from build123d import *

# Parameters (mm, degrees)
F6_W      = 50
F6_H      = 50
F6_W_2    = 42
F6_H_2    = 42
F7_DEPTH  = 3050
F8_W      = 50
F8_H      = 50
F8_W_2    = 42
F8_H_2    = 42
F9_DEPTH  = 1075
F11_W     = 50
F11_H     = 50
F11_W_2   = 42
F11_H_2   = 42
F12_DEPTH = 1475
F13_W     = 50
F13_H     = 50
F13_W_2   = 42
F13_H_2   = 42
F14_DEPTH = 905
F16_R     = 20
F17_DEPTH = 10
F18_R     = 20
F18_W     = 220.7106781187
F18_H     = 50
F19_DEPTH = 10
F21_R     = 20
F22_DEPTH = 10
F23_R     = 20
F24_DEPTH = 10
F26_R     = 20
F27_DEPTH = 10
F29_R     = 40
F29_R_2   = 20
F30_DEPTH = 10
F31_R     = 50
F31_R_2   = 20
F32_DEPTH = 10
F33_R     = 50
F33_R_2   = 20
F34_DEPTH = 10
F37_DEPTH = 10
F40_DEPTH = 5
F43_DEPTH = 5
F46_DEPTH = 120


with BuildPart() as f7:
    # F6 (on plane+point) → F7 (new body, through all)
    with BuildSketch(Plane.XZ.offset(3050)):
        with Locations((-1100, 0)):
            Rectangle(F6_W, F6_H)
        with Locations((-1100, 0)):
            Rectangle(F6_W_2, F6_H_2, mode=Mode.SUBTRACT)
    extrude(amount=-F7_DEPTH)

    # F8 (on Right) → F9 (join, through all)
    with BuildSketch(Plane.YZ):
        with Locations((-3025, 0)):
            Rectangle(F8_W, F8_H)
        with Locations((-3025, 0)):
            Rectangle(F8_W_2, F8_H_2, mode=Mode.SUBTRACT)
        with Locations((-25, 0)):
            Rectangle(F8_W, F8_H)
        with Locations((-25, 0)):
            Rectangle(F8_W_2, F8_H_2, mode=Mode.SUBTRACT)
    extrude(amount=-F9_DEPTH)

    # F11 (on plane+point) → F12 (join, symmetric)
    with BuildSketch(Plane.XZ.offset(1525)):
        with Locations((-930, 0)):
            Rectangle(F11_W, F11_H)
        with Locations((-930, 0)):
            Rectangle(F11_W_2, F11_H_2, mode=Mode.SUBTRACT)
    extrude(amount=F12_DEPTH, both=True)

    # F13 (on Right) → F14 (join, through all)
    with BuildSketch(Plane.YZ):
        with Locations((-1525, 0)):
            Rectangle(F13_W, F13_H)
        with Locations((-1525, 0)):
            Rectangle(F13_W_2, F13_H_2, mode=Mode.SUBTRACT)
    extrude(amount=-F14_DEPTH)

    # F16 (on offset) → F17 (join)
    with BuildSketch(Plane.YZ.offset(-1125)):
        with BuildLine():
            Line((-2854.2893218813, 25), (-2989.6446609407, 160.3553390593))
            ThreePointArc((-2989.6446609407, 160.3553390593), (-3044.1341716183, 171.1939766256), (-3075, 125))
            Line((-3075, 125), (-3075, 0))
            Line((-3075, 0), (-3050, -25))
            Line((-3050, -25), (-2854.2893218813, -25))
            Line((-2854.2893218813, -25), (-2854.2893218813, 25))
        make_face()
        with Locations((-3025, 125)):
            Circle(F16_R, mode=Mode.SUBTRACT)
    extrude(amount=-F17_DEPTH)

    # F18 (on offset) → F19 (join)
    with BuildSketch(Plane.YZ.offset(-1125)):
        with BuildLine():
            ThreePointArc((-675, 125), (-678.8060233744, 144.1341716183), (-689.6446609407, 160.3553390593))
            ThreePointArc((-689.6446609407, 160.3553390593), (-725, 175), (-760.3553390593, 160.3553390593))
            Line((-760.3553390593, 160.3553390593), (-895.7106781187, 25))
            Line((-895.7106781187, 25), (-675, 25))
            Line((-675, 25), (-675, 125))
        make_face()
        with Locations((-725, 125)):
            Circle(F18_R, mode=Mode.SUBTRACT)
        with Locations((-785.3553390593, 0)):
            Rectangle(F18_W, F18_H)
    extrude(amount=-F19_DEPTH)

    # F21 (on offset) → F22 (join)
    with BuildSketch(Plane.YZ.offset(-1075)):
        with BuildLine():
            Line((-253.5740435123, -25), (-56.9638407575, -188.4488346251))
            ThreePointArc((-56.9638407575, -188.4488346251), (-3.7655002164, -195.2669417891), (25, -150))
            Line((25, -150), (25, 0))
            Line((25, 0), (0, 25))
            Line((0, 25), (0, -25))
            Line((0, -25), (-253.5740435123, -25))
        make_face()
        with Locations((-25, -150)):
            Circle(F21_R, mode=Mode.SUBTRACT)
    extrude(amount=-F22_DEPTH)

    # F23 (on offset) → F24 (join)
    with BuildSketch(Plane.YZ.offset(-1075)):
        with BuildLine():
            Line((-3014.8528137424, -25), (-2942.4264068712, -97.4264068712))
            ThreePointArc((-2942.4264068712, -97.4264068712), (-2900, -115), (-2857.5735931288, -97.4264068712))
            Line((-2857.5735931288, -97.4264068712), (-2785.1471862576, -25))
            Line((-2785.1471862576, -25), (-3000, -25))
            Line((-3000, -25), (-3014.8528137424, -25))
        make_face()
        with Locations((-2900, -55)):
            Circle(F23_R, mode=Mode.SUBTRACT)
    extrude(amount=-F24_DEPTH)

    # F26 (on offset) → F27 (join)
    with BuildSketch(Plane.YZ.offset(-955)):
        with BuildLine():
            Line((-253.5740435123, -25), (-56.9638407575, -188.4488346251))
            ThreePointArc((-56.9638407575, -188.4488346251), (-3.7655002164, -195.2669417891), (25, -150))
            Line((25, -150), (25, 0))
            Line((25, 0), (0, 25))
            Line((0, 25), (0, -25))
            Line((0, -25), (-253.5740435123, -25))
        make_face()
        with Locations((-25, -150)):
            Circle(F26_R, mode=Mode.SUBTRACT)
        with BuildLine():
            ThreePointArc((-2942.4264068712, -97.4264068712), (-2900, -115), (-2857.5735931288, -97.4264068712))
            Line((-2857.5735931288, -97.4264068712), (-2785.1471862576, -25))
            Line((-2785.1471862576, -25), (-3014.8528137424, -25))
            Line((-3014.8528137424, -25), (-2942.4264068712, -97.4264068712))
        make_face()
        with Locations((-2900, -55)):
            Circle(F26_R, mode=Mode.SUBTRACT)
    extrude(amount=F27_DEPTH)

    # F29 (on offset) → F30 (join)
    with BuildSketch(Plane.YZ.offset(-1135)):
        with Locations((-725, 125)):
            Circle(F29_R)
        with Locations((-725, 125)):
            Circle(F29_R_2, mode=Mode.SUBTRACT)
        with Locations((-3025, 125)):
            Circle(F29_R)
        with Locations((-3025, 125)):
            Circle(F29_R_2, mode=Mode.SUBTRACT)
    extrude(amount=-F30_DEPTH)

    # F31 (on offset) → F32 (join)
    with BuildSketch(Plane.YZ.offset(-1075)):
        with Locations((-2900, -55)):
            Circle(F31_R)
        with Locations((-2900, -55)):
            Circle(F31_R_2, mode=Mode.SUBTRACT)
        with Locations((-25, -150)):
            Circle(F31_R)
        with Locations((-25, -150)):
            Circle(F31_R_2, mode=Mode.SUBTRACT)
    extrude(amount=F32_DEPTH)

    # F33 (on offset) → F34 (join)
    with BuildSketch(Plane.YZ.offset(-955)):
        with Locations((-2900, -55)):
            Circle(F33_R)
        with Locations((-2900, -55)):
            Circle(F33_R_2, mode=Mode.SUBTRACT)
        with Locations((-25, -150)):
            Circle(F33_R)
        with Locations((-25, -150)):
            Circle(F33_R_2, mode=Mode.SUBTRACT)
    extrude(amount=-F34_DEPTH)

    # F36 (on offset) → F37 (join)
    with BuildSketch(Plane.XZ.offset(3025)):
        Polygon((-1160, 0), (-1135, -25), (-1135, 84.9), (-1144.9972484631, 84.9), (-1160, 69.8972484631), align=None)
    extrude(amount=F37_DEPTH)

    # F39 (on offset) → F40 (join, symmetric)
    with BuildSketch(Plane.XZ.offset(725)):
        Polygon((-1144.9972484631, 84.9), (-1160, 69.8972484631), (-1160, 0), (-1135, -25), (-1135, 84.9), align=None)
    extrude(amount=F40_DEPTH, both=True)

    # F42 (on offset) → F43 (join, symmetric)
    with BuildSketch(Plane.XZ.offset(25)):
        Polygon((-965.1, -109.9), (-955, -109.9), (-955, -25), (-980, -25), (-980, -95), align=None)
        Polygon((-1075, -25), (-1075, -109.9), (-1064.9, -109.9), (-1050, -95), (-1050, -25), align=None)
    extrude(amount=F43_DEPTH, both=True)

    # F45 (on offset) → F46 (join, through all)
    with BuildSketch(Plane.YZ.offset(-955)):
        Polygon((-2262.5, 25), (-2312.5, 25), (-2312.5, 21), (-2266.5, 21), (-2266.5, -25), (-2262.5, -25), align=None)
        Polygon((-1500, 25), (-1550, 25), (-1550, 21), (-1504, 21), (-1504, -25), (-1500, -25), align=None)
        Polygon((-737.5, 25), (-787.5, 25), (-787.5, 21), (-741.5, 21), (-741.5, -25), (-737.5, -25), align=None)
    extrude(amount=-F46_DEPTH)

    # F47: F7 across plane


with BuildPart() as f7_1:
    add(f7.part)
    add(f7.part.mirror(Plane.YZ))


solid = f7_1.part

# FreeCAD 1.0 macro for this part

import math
import FreeCAD as App
import Part
import Sketcher
Q = App.Units.Quantity


def add_polygon(sketch, points):
    """Adds a closed chain of lines whose ends are joined by coincident constraints."""
    first, n = sketch.GeometryCount, len(points)
    for a, b in zip(points, points[1:] + points[:1]):
        sketch.addGeometry(Part.LineSegment(App.Vector(*a, 0), App.Vector(*b, 0)), False)
    for i in range(n):
        sketch.addConstraint(Sketcher.Constraint("Coincident", first + i, 2, first + (i + 1) % n, 1))

doc = App.newDocument("Part")
body = doc.addObject("PartDesign::Body", "Body")

# Sketch on XZ plane
sketch1 = doc.addObject("Sketcher::SketchObject", "Sketch")
body.addObject(sketch1)
sketch1.AttachmentSupport = (doc.XZ_Plane, [""])
sketch1.MapMode = "FlatFace"
sketch1.AttachmentOffset = App.Placement(App.Vector(0, 0, 3050), App.Rotation())
add_polygon(sketch1, [(-1125, 25), (-1125, -25), (-1075, -25), (-1075, 25)])  # lines 0-3
add_polygon(sketch1, [(-1079, -21), (-1121, -21), (-1121, 21), (-1079, 21)])  # lines 4-7
sketch1.addConstraint([
    Sketcher.Constraint("Vertical", 0),
    Sketcher.Constraint("Horizontal", 1),
    Sketcher.Constraint("Vertical", 2),
    Sketcher.Constraint("Horizontal", 3),
    Sketcher.Constraint("Horizontal", 4),
    Sketcher.Constraint("Vertical", 5),
    Sketcher.Constraint("Horizontal", 6),
    Sketcher.Constraint("Vertical", 7),
    Sketcher.Constraint("Equal", 3, 0),
    Sketcher.Constraint("Equal", 6, 5),
    Sketcher.Constraint("DistanceX", 1, 1, 1, 2, 50.0),
    Sketcher.Constraint("DistanceX", 4, 2, 4, 1, 42.0),
    Sketcher.Constraint("DistanceX", 0, 2, -1, 1, 1125.0),
    Sketcher.Constraint("DistanceY", 0, 2, -1, 1, 25.0),
    Sketcher.Constraint("DistanceX", 4, 2, -1, 1, 1121.0),
    Sketcher.Constraint("DistanceY", 4, 2, -1, 1, 21.0),
])
pad1 = doc.addObject("PartDesign::Pad", "Pad")
body.addObject(pad1)
pad1.Profile = sketch1
pad1.Length = 3050
pad1.Reversed = True

# Sketch on YZ plane
sketch2 = doc.addObject("Sketcher::SketchObject", "Sketch001")
body.addObject(sketch2)
sketch2.AttachmentSupport = (doc.YZ_Plane, [""])
sketch2.MapMode = "FlatFace"
add_polygon(sketch2, [(-3050, 25), (-3050, -25), (-3000, -25), (-3000, 25)])  # lines 0-3
add_polygon(sketch2, [(-3004, -21), (-3046, -21), (-3046, 21), (-3004, 21)])  # lines 4-7
add_polygon(sketch2, [(-50, 25), (-50, -25), (0, -25), (0, 25)])  # lines 8-11
add_polygon(sketch2, [(-4, -21), (-46, -21), (-46, 21), (-4, 21)])  # lines 12-15
sketch2.addConstraint([
    Sketcher.Constraint("Vertical", 0),
    Sketcher.Constraint("Horizontal", 1),
    Sketcher.Constraint("Vertical", 2),
    Sketcher.Constraint("Horizontal", 3),
    Sketcher.Constraint("Horizontal", 4),
    Sketcher.Constraint("Vertical", 5),
    Sketcher.Constraint("Horizontal", 6),
    Sketcher.Constraint("Vertical", 7),
    Sketcher.Constraint("Vertical", 8),
    Sketcher.Constraint("Horizontal", 9),
    Sketcher.Constraint("Vertical", 10),
    Sketcher.Constraint("Horizontal", 11),
    Sketcher.Constraint("Horizontal", 12),
    Sketcher.Constraint("Vertical", 13),
    Sketcher.Constraint("Horizontal", 14),
    Sketcher.Constraint("Vertical", 15),
    Sketcher.Constraint("Symmetric", 9, 2, 10, 2, -1, 1),
    Sketcher.Constraint("Horizontal", 1, 2, 8, 2),
    Sketcher.Constraint("Horizontal", 3, 2, 10, 2),
    Sketcher.Constraint("Horizontal", 7, 2, 12, 2),
    Sketcher.Constraint("Horizontal", 6, 2, 13, 2),
    Sketcher.Constraint("Equal", 3, 9),
    Sketcher.Constraint("Equal", 6, 12),
    Sketcher.Constraint("Equal", 11, 0),
    Sketcher.Constraint("Equal", 14, 5),
    Sketcher.Constraint("DistanceX", 1, 1, 1, 2, 50.0),
    Sketcher.Constraint("DistanceX", 4, 2, 4, 1, 42.0),
    Sketcher.Constraint("DistanceX", 0, 2, -1, 1, 3050.0),
    Sketcher.Constraint("DistanceX", 4, 2, -1, 1, 3046.0),
    Sketcher.Constraint("DistanceY", 4, 2, -1, 1, 21.0),
    Sketcher.Constraint("DistanceX", 12, 2, -1, 1, 46.0),
])
pad2 = doc.addObject("PartDesign::Pad", "Pad001")
body.addObject(pad2)
pad2.Profile = sketch2
pad2.Length = 1075
pad2.Reversed = True

# Sketch on XZ plane
sketch3 = doc.addObject("Sketcher::SketchObject", "Sketch002")
body.addObject(sketch3)
sketch3.AttachmentSupport = (doc.XZ_Plane, [""])
sketch3.MapMode = "FlatFace"
sketch3.AttachmentOffset = App.Placement(App.Vector(0, 0, 1525), App.Rotation())
add_polygon(sketch3, [(-955, 25), (-955, -25), (-905, -25), (-905, 25)])  # lines 0-3
add_polygon(sketch3, [(-909, -21), (-951, -21), (-951, 21), (-909, 21)])  # lines 4-7
sketch3.addConstraint([
    Sketcher.Constraint("Vertical", 0),
    Sketcher.Constraint("Horizontal", 1),
    Sketcher.Constraint("Vertical", 2),
    Sketcher.Constraint("Horizontal", 3),
    Sketcher.Constraint("Horizontal", 4),
    Sketcher.Constraint("Vertical", 5),
    Sketcher.Constraint("Horizontal", 6),
    Sketcher.Constraint("Vertical", 7),
    Sketcher.Constraint("Equal", 3, 0),
    Sketcher.Constraint("Equal", 6, 5),
    Sketcher.Constraint("DistanceX", 1, 1, 1, 2, 50.0),
    Sketcher.Constraint("DistanceX", 4, 2, 4, 1, 42.0),
    Sketcher.Constraint("DistanceX", 0, 2, -1, 1, 955.0),
    Sketcher.Constraint("DistanceY", 0, 2, -1, 1, 25.0),
    Sketcher.Constraint("DistanceX", 4, 2, -1, 1, 951.0),
    Sketcher.Constraint("DistanceY", 4, 2, -1, 1, 21.0),
])
pad3 = doc.addObject("PartDesign::Pad", "Pad002")
body.addObject(pad3)
pad3.Profile = sketch3
pad3.Length = 2950
pad3.Midplane = True

# Sketch on YZ plane
sketch4 = doc.addObject("Sketcher::SketchObject", "Sketch003")
body.addObject(sketch4)
sketch4.AttachmentSupport = (doc.YZ_Plane, [""])
sketch4.MapMode = "FlatFace"
add_polygon(sketch4, [(-1550, 25), (-1550, -25), (-1500, -25), (-1500, 25)])  # lines 0-3
add_polygon(sketch4, [(-1504, -21), (-1546, -21), (-1546, 21), (-1504, 21)])  # lines 4-7
sketch4.addConstraint([
    Sketcher.Constraint("Vertical", 0),
    Sketcher.Constraint("Horizontal", 1),
    Sketcher.Constraint("Vertical", 2),
    Sketcher.Constraint("Horizontal", 3),
    Sketcher.Constraint("Horizontal", 4),
    Sketcher.Constraint("Vertical", 5),
    Sketcher.Constraint("Horizontal", 6),
    Sketcher.Constraint("Vertical", 7),
    Sketcher.Constraint("Equal", 3, 0),
    Sketcher.Constraint("Equal", 6, 5),
    Sketcher.Constraint("DistanceX", 1, 1, 1, 2, 50.0),
    Sketcher.Constraint("DistanceX", 4, 2, 4, 1, 42.0),
    Sketcher.Constraint("DistanceX", 0, 2, -1, 1, 1550.0),
    Sketcher.Constraint("DistanceY", 0, 2, -1, 1, 25.0),
    Sketcher.Constraint("DistanceX", 4, 2, -1, 1, 1546.0),
    Sketcher.Constraint("DistanceY", 4, 2, -1, 1, 21.0),
])
pad4 = doc.addObject("PartDesign::Pad", "Pad003")
body.addObject(pad4)
pad4.Profile = sketch4
pad4.Length = 905
pad4.Reversed = True

# Sketch on YZ plane
sketch5 = doc.addObject("Sketcher::SketchObject", "Sketch004")
body.addObject(sketch5)
sketch5.AttachmentSupport = (doc.YZ_Plane, [""])
sketch5.MapMode = "FlatFace"
sketch5.AttachmentOffset = App.Placement(App.Vector(0, 0, -1125), App.Rotation())
sketch5.addGeometry([
    Part.LineSegment(App.Vector(-2854.289322, 25, 0), App.Vector(-2989.644661, 160.355339, 0)),  # 0
    Part.ArcOfCircle(Part.Circle(App.Vector(-3025, 125, 0), App.Vector(0, 0, 1), 50), math.radians(45), math.radians(180)),  # 1
    Part.LineSegment(App.Vector(-3075, 125, 0), App.Vector(-3075, 0, 0)),  # 2
    Part.LineSegment(App.Vector(-3075, 0, 0), App.Vector(-3050, -25, 0)),  # 3
    Part.LineSegment(App.Vector(-3050, -25, 0), App.Vector(-2854.289322, -25, 0)),  # 4
    Part.LineSegment(App.Vector(-2854.289322, -25, 0), App.Vector(-2854.289322, 25, 0)),  # 5
    Part.Circle(App.Vector(-3025, 125, 0), App.Vector(0, 0, 1), 20),  # 6
], False)
sketch5.addConstraint([
    Sketcher.Constraint("Tangent", 0, 2, 1, 1),
    Sketcher.Constraint("Tangent", 1, 2, 2, 1),
    Sketcher.Constraint("Coincident", 2, 2, 3, 1),
    Sketcher.Constraint("Coincident", 3, 2, 4, 1),
    Sketcher.Constraint("Coincident", 4, 2, 5, 1),
    Sketcher.Constraint("Coincident", 5, 2, 0, 1),
    Sketcher.Constraint("Vertical", 2),
    Sketcher.Constraint("Horizontal", 4),
    Sketcher.Constraint("Vertical", 5),
    Sketcher.Constraint("Coincident", 6, 3, 1, 3),
    Sketcher.Constraint("PointOnObject", 2, 2, -1),
    Sketcher.Constraint("Parallel", 0, 3),
    Sketcher.Constraint("Diameter", 6, 40.0),
    Sketcher.Constraint("Radius", 1, 50.0),
    Sketcher.Constraint("DistanceY", 2, 2, 2, 1, 125.0),
    Sketcher.Constraint("DistanceY", 5, 1, 5, 2, 50.0),
    Sketcher.Constraint("Angle", 0, Q("135 deg")),
    Sketcher.Constraint("DistanceX", 1, 3, -1, 1, 3025.0),
    Sketcher.Constraint("DistanceX", 3, 2, -1, 1, 3050.0),
])
pad5 = doc.addObject("PartDesign::Pad", "Pad004")
body.addObject(pad5)
pad5.Profile = sketch5
pad5.Length = 10
pad5.Reversed = True

# Sketch on YZ plane
sketch6 = doc.addObject("Sketcher::SketchObject", "Sketch005")
body.addObject(sketch6)
sketch6.AttachmentSupport = (doc.YZ_Plane, [""])
sketch6.MapMode = "FlatFace"
sketch6.AttachmentOffset = App.Placement(App.Vector(0, 0, -1125), App.Rotation())
sketch6.addGeometry([
    Part.ArcOfCircle(Part.Circle(App.Vector(-725, 125, 0), App.Vector(0, 0, 1), 50), math.radians(0), math.radians(45)),  # 0
    Part.ArcOfCircle(Part.Circle(App.Vector(-725, 125, 0), App.Vector(0, 0, 1), 50), math.radians(45), math.radians(135)),  # 1
    Part.LineSegment(App.Vector(-760.355339, 160.355339, 0), App.Vector(-895.710678, 25, 0)),  # 2
    Part.LineSegment(App.Vector(-895.710678, 25, 0), App.Vector(-895.710678, -25, 0)),  # 3
    Part.LineSegment(App.Vector(-895.710678, -25, 0), App.Vector(-675, -25, 0)),  # 4
    Part.LineSegment(App.Vector(-675, -25, 0), App.Vector(-675, 125, 0)),  # 5
    Part.Circle(App.Vector(-725, 125, 0), App.Vector(0, 0, 1), 20),  # 6
], False)
sketch6.addConstraint([
    Sketcher.Constraint("Tangent", 0, 2, 1, 1),
    Sketcher.Constraint("Tangent", 1, 2, 2, 1),
    Sketcher.Constraint("Coincident", 2, 2, 3, 1),
    Sketcher.Constraint("Coincident", 3, 2, 4, 1),
    Sketcher.Constraint("Coincident", 4, 2, 5, 1),
    Sketcher.Constraint("Tangent", 5, 2, 0, 1),
    Sketcher.Constraint("Vertical", 3),
    Sketcher.Constraint("Horizontal", 4),
    Sketcher.Constraint("Vertical", 5),
    Sketcher.Constraint("Coincident", 6, 3, 0, 3),
    Sketcher.Constraint("Equal", 0, 1),
    Sketcher.Constraint("Horizontal", 0, 2, 1, 2),
    Sketcher.Constraint("Diameter", 6, 40.0),
    Sketcher.Constraint("Radius", 0, 50.0),
    Sketcher.Constraint("DistanceY", 3, 2, 3, 1, 50.0),
    Sketcher.Constraint("DistanceY", 5, 1, 5, 2, 150.0),
    Sketcher.Constraint("Angle", 2, Q("-135 deg")),
    Sketcher.Constraint("DistanceX", 0, 3, -1, 1, 725.0),
    Sketcher.Constraint("DistanceY", -1, 1, 0, 3, 125.0),
])
pad6 = doc.addObject("PartDesign::Pad", "Pad005")
body.addObject(pad6)
pad6.Profile = sketch6
pad6.Length = 10
pad6.Reversed = True

# Sketch on YZ plane
sketch7 = doc.addObject("Sketcher::SketchObject", "Sketch006")
body.addObject(sketch7)
sketch7.AttachmentSupport = (doc.YZ_Plane, [""])
sketch7.MapMode = "FlatFace"
sketch7.AttachmentOffset = App.Placement(App.Vector(0, 0, -1075), App.Rotation())
sketch7.addGeometry([
    Part.LineSegment(App.Vector(-253.574044, -25, 0), App.Vector(-56.963841, -188.448835, 0)),  # 0
    Part.ArcOfCircle(Part.Circle(App.Vector(-25, -150, 0), App.Vector(0, 0, 1), 50), math.radians(-129.737915), math.radians(0)),  # 1
    Part.LineSegment(App.Vector(25, -150, 0), App.Vector(25, 0, 0)),  # 2
    Part.LineSegment(App.Vector(25, 0, 0), App.Vector(0, 25, 0)),  # 3
    Part.LineSegment(App.Vector(0, 25, 0), App.Vector(0, -25, 0)),  # 4
    Part.LineSegment(App.Vector(0, -25, 0), App.Vector(-253.574044, -25, 0)),  # 5
    Part.Circle(App.Vector(-25, -150, 0), App.Vector(0, 0, 1), 20),  # 6
], False)
sketch7.addConstraint([
    Sketcher.Constraint("Tangent", 0, 2, 1, 1),
    Sketcher.Constraint("Tangent", 1, 2, 2, 1),
    Sketcher.Constraint("Coincident", 2, 2, 3, 1),
    Sketcher.Constraint("Coincident", 3, 2, 4, 1),
    Sketcher.Constraint("Coincident", 4, 2, 5, 1),
    Sketcher.Constraint("Coincident", 5, 2, 0, 1),
    Sketcher.Constraint("Vertical", 2),
    Sketcher.Constraint("Vertical", 4),
    Sketcher.Constraint("Horizontal", 5),
    Sketcher.Constraint("Coincident", 6, 3, 1, 3),
    Sketcher.Constraint("Symmetric", 3, 2, 4, 2, -1, 1),
    Sketcher.Constraint("PointOnObject", 2, 2, -1),
    Sketcher.Constraint("Diameter", 6, 40.0),
    Sketcher.Constraint("Radius", 1, 50.0),
    Sketcher.Constraint("DistanceY", 2, 1, 2, 2, 150.0),
    Sketcher.Constraint("DistanceY", 4, 2, 4, 1, 50.0),
    Sketcher.Constraint("Angle", 3, Q("135 deg")),
    Sketcher.Constraint("DistanceX", 5, 2, 5, 1, 253.574044),
])
pad7 = doc.addObject("PartDesign::Pad", "Pad006")
body.addObject(pad7)
pad7.Profile = sketch7
pad7.Length = 10
pad7.Reversed = True

# Sketch on YZ plane
sketch8 = doc.addObject("Sketcher::SketchObject", "Sketch007")
body.addObject(sketch8)
sketch8.AttachmentSupport = (doc.YZ_Plane, [""])
sketch8.MapMode = "FlatFace"
sketch8.AttachmentOffset = App.Placement(App.Vector(0, 0, -1075), App.Rotation())
sketch8.addGeometry([
    Part.LineSegment(App.Vector(-3014.852814, -25, 0), App.Vector(-2942.426407, -97.426407, 0)),  # 0
    Part.ArcOfCircle(Part.Circle(App.Vector(-2900, -55, 0), App.Vector(0, 0, 1), 60), math.radians(-135), math.radians(-45)),  # 1
    Part.LineSegment(App.Vector(-2857.573593, -97.426407, 0), App.Vector(-2785.147186, -25, 0)),  # 2
    Part.LineSegment(App.Vector(-2785.147186, -25, 0), App.Vector(-3014.852814, -25, 0)),  # 3
    Part.Circle(App.Vector(-2900, -55, 0), App.Vector(0, 0, 1), 20),  # 4
], False)
sketch8.addConstraint([
    Sketcher.Constraint("Tangent", 0, 2, 1, 1),
    Sketcher.Constraint("Tangent", 1, 2, 2, 1),
    Sketcher.Constraint("Coincident", 2, 2, 3, 1),
    Sketcher.Constraint("Coincident", 3, 2, 0, 1),
    Sketcher.Constraint("Horizontal", 3),
    Sketcher.Constraint("Coincident", 4, 3, 1, 3),
    Sketcher.Constraint("Perpendicular", 0, 2),
    Sketcher.Constraint("Horizontal", 0, 2, 1, 2),
    Sketcher.Constraint("Diameter", 4, 40.0),
    Sketcher.Constraint("Radius", 1, 60.0),
    Sketcher.Constraint("DistanceX", 1, 3, -1, 1, 2900.0),
    Sketcher.Constraint("DistanceY", 1, 3, -1, 1, 55.0),
    Sketcher.Constraint("DistanceY", 2, 2, -1, 1, 25.0),
])
pad8 = doc.addObject("PartDesign::Pad", "Pad007")
body.addObject(pad8)
pad8.Profile = sketch8
pad8.Length = 10
pad8.Reversed = True

# Sketch on YZ plane
sketch9 = doc.addObject("Sketcher::SketchObject", "Sketch008")
body.addObject(sketch9)
sketch9.AttachmentSupport = (doc.YZ_Plane, [""])
sketch9.MapMode = "FlatFace"
sketch9.AttachmentOffset = App.Placement(App.Vector(0, 0, -955), App.Rotation())
sketch9.addGeometry([
    Part.LineSegment(App.Vector(-253.574044, -25, 0), App.Vector(-56.963841, -188.448835, 0)),  # 0
    Part.ArcOfCircle(Part.Circle(App.Vector(-25, -150, 0), App.Vector(0, 0, 1), 50), math.radians(-129.737915), math.radians(0)),  # 1
    Part.LineSegment(App.Vector(25, -150, 0), App.Vector(25, 0, 0)),  # 2
    Part.LineSegment(App.Vector(25, 0, 0), App.Vector(0, 25, 0)),  # 3
    Part.LineSegment(App.Vector(0, 25, 0), App.Vector(0, -25, 0)),  # 4
    Part.LineSegment(App.Vector(0, -25, 0), App.Vector(-253.574044, -25, 0)),  # 5
    Part.Circle(App.Vector(-25, -150, 0), App.Vector(0, 0, 1), 20),  # 6
    Part.ArcOfCircle(Part.Circle(App.Vector(-2900, -55, 0), App.Vector(0, 0, 1), 60), math.radians(-135), math.radians(-45)),  # 7
    Part.LineSegment(App.Vector(-2857.573593, -97.426407, 0), App.Vector(-2785.147186, -25, 0)),  # 8
    Part.LineSegment(App.Vector(-2785.147186, -25, 0), App.Vector(-3014.852814, -25, 0)),  # 9
    Part.LineSegment(App.Vector(-3014.852814, -25, 0), App.Vector(-2942.426407, -97.426407, 0)),  # 10
    Part.Circle(App.Vector(-2900, -55, 0), App.Vector(0, 0, 1), 20),  # 11
], False)
sketch9.addConstraint([
    Sketcher.Constraint("Tangent", 0, 2, 1, 1),
    Sketcher.Constraint("Tangent", 1, 2, 2, 1),
    Sketcher.Constraint("Coincident", 2, 2, 3, 1),
    Sketcher.Constraint("Coincident", 3, 2, 4, 1),
    Sketcher.Constraint("Coincident", 4, 2, 5, 1),
    Sketcher.Constraint("Coincident", 5, 2, 0, 1),
    Sketcher.Constraint("Tangent", 7, 2, 8, 1),
    Sketcher.Constraint("Coincident", 8, 2, 9, 1),
    Sketcher.Constraint("Coincident", 9, 2, 10, 1),
    Sketcher.Constraint("Tangent", 10, 2, 7, 1),
    Sketcher.Constraint("Vertical", 2),
    Sketcher.Constraint("Vertical", 4),
    Sketcher.Constraint("Horizontal", 5),
    Sketcher.Constraint("Horizontal", 9),
    Sketcher.Constraint("Coincident", 6, 3, 1, 3),
    Sketcher.Constraint("Coincident", 11, 3, 7, 3),
    Sketcher.Constraint("Equal", 6, 11),
    Sketcher.Constraint("Symmetric", 3, 2, 4, 2, -1, 1),
    Sketcher.Constraint("PointOnObject", 2, 2, -1),
    Sketcher.Constraint("Perpendicular", 3, 8),
    Sketcher.Constraint("Perpendicular", 8, 10),
    Sketcher.Constraint("Horizontal", 5, 2, 8, 2),
    Sketcher.Constraint("Horizontal", 7, 2, 10, 2),
    Sketcher.Constraint("Diameter", 6, 40.0),
    Sketcher.Constraint("Radius", 1, 50.0),
    Sketcher.Constraint("Radius", 7, 60.0),
    Sketcher.Constraint("DistanceY", 2, 1, 2, 2, 150.0),
    Sketcher.Constraint("DistanceY", 4, 2, 4, 1, 50.0),
    Sketcher.Constraint("DistanceX", 7, 3, -1, 1, 2900.0),
    Sketcher.Constraint("DistanceY", 7, 3, -1, 1, 55.0),
    Sketcher.Constraint("DistanceX", 5, 2, 5, 1, 253.574044),
])
pad9 = doc.addObject("PartDesign::Pad", "Pad008")
body.addObject(pad9)
pad9.Profile = sketch9
pad9.Length = 10

# Sketch on YZ plane
sketch10 = doc.addObject("Sketcher::SketchObject", "Sketch009")
body.addObject(sketch10)
sketch10.AttachmentSupport = (doc.YZ_Plane, [""])
sketch10.MapMode = "FlatFace"
sketch10.AttachmentOffset = App.Placement(App.Vector(0, 0, -1135), App.Rotation())
sketch10.addGeometry([
    Part.Circle(App.Vector(-725, 125, 0), App.Vector(0, 0, 1), 40),
    Part.Circle(App.Vector(-725, 125, 0), App.Vector(0, 0, 1), 20),
    Part.Circle(App.Vector(-3025, 125, 0), App.Vector(0, 0, 1), 40),
    Part.Circle(App.Vector(-3025, 125, 0), App.Vector(0, 0, 1), 20),
], False)
sketch10.addConstraint([
    Sketcher.Constraint("Coincident", 1, 3, 0, 3),
    Sketcher.Constraint("Coincident", 3, 3, 2, 3),
    Sketcher.Constraint("Equal", 0, 2),
    Sketcher.Constraint("Equal", 1, 3),
    Sketcher.Constraint("Horizontal", 1, 3, 2, 3),
    Sketcher.Constraint("Diameter", 0, 80.0),
    Sketcher.Constraint("Diameter", 1, 40.0),
    Sketcher.Constraint("DistanceX", 0, 3, -1, 1, 725.0),
    Sketcher.Constraint("DistanceY", -1, 1, 0, 3, 125.0),
    Sketcher.Constraint("DistanceX", 2, 3, -1, 1, 3025.0),
])
pad10 = doc.addObject("PartDesign::Pad", "Pad009")
body.addObject(pad10)
pad10.Profile = sketch10
pad10.Length = 10
pad10.Reversed = True

# Sketch on YZ plane
sketch11 = doc.addObject("Sketcher::SketchObject", "Sketch010")
body.addObject(sketch11)
sketch11.AttachmentSupport = (doc.YZ_Plane, [""])
sketch11.MapMode = "FlatFace"
sketch11.AttachmentOffset = App.Placement(App.Vector(0, 0, -1075), App.Rotation())
sketch11.addGeometry([
    Part.Circle(App.Vector(-2900, -55, 0), App.Vector(0, 0, 1), 50),
    Part.Circle(App.Vector(-2900, -55, 0), App.Vector(0, 0, 1), 20),
    Part.Circle(App.Vector(-25, -150, 0), App.Vector(0, 0, 1), 50),
    Part.Circle(App.Vector(-25, -150, 0), App.Vector(0, 0, 1), 20),
], False)
sketch11.addConstraint([
    Sketcher.Constraint("Coincident", 1, 3, 0, 3),
    Sketcher.Constraint("Coincident", 3, 3, 2, 3),
    Sketcher.Constraint("Equal", 0, 2),
    Sketcher.Constraint("Equal", 1, 3),
    Sketcher.Constraint("Diameter", 0, 100.0),
    Sketcher.Constraint("Diameter", 1, 40.0),
    Sketcher.Constraint("DistanceX", 0, 3, -1, 1, 2900.0),
    Sketcher.Constraint("DistanceY", 0, 3, -1, 1, 55.0),
    Sketcher.Constraint("DistanceX", 2, 3, -1, 1, 25.0),
    Sketcher.Constraint("DistanceY", 2, 3, -1, 1, 150.0),
])
pad11 = doc.addObject("PartDesign::Pad", "Pad010")
body.addObject(pad11)
pad11.Profile = sketch11
pad11.Length = 10

# Sketch on YZ plane
sketch12 = doc.addObject("Sketcher::SketchObject", "Sketch011")
body.addObject(sketch12)
sketch12.AttachmentSupport = (doc.YZ_Plane, [""])
sketch12.MapMode = "FlatFace"
sketch12.AttachmentOffset = App.Placement(App.Vector(0, 0, -955), App.Rotation())
sketch12.addGeometry([
    Part.Circle(App.Vector(-2900, -55, 0), App.Vector(0, 0, 1), 50),
    Part.Circle(App.Vector(-2900, -55, 0), App.Vector(0, 0, 1), 20),
    Part.Circle(App.Vector(-25, -150, 0), App.Vector(0, 0, 1), 50),
    Part.Circle(App.Vector(-25, -150, 0), App.Vector(0, 0, 1), 20),
], False)
sketch12.addConstraint([
    Sketcher.Constraint("Coincident", 1, 3, 0, 3),
    Sketcher.Constraint("Coincident", 3, 3, 2, 3),
    Sketcher.Constraint("Equal", 0, 2),
    Sketcher.Constraint("Equal", 1, 3),
    Sketcher.Constraint("Diameter", 0, 100.0),
    Sketcher.Constraint("Diameter", 1, 40.0),
    Sketcher.Constraint("DistanceX", 0, 3, -1, 1, 2900.0),
    Sketcher.Constraint("DistanceY", 0, 3, -1, 1, 55.0),
    Sketcher.Constraint("DistanceX", 2, 3, -1, 1, 25.0),
    Sketcher.Constraint("DistanceY", 2, 3, -1, 1, 150.0),
])
pad12 = doc.addObject("PartDesign::Pad", "Pad011")
body.addObject(pad12)
pad12.Profile = sketch12
pad12.Length = 10
pad12.Reversed = True

# Sketch on XZ plane
sketch13 = doc.addObject("Sketcher::SketchObject", "Sketch012")
body.addObject(sketch13)
sketch13.AttachmentSupport = (doc.XZ_Plane, [""])
sketch13.MapMode = "FlatFace"
sketch13.AttachmentOffset = App.Placement(App.Vector(0, 0, 3025), App.Rotation())
add_polygon(sketch13, [(-1160, 0), (-1135, -25), (-1135, 84.9), (-1144.997248, 84.9), (-1160, 69.897248)])  # lines 0-4
sketch13.addConstraint([
    Sketcher.Constraint("Vertical", 1),
    Sketcher.Constraint("Horizontal", 2),
    Sketcher.Constraint("Vertical", 4),
    Sketcher.Constraint("PointOnObject", 4, 2, -1),
    Sketcher.Constraint("Perpendicular", 0, 3),
    Sketcher.Constraint("Angle", 0, Q("-45 deg")),
    Sketcher.Constraint("DistanceY", 1, 1, 1, 2, 109.9),
    Sketcher.Constraint("DistanceX", 0, 2, -1, 1, 1135.0),
    Sketcher.Constraint("DistanceY", 0, 2, -1, 1, 25.0),
    Sketcher.Constraint("DistanceX", 2, 2, 2, 1, 9.997248),
])
pad13 = doc.addObject("PartDesign::Pad", "Pad012")
body.addObject(pad13)
pad13.Profile = sketch13
pad13.Length = 10

# Sketch on XZ plane
sketch14 = doc.addObject("Sketcher::SketchObject", "Sketch013")
body.addObject(sketch14)
sketch14.AttachmentSupport = (doc.XZ_Plane, [""])
sketch14.MapMode = "FlatFace"
sketch14.AttachmentOffset = App.Placement(App.Vector(0, 0, 725), App.Rotation())
add_polygon(sketch14, [(-1144.997248, 84.9), (-1160, 69.897248), (-1160, 0), (-1135, -25), (-1135, 84.9)])  # lines 0-4
sketch14.addConstraint([
    Sketcher.Constraint("Vertical", 1),
    Sketcher.Constraint("Vertical", 3),
    Sketcher.Constraint("Horizontal", 4),
    Sketcher.Constraint("PointOnObject", 1, 2, -1),
    Sketcher.Constraint("Perpendicular", 0, 2),
    Sketcher.Constraint("Angle", 0, Q("-135 deg")),
    Sketcher.Constraint("DistanceY", 3, 1, 3, 2, 109.9),
    Sketcher.Constraint("DistanceX", 0, 2, -1, 1, 1160.0),
    Sketcher.Constraint("DistanceX", 2, 2, -1, 1, 1135.0),
    Sketcher.Constraint("DistanceX", 4, 2, 4, 1, 9.997248),
])
pad14 = doc.addObject("PartDesign::Pad", "Pad013")
body.addObject(pad14)
pad14.Profile = sketch14
pad14.Length = 10
pad14.Midplane = True

# Sketch on XZ plane
sketch15 = doc.addObject("Sketcher::SketchObject", "Sketch014")
body.addObject(sketch15)
sketch15.AttachmentSupport = (doc.XZ_Plane, [""])
sketch15.MapMode = "FlatFace"
sketch15.AttachmentOffset = App.Placement(App.Vector(0, 0, 25), App.Rotation())
add_polygon(sketch15, [(-965.1, -109.9), (-955, -109.9), (-955, -25), (-980, -25), (-980, -95)])  # lines 0-4
add_polygon(sketch15, [(-1075, -25), (-1075, -109.9), (-1064.9, -109.9), (-1050, -95), (-1050, -25)])  # lines 5-9
sketch15.addConstraint([
    Sketcher.Constraint("Horizontal", 0),
    Sketcher.Constraint("Vertical", 1),
    Sketcher.Constraint("Horizontal", 2),
    Sketcher.Constraint("Vertical", 3),
    Sketcher.Constraint("Vertical", 5),
    Sketcher.Constraint("Horizontal", 6),
    Sketcher.Constraint("Vertical", 8),
    Sketcher.Constraint("Horizontal", 9),
    Sketcher.Constraint("Perpendicular", 4, 7),
    Sketcher.Constraint("Horizontal", 4, 2, 5, 2),
    Sketcher.Constraint("Horizontal", 3, 2, 7, 2),
    Sketcher.Constraint("Horizontal", 2, 2, 8, 2),
    Sketcher.Constraint("Equal", 0, 6),
    Sketcher.Constraint("Equal", 2, 9),
    Sketcher.Constraint("DistanceX", 2, 2, 2, 1, 25.0),
    Sketcher.Constraint("DistanceY", 3, 2, 3, 1, 70.0),
    Sketcher.Constraint("DistanceX", 0, 1, 0, 2, 10.1),
    Sketcher.Constraint("DistanceX", 0, 2, -1, 1, 955.0),
    Sketcher.Constraint("DistanceY", 1, 2, -1, 1, 25.0),
    Sketcher.Constraint("DistanceX", 5, 2, -1, 1, 1075.0),
])
pad15 = doc.addObject("PartDesign::Pad", "Pad014")
body.addObject(pad15)
pad15.Profile = sketch15
pad15.Length = 10
pad15.Midplane = True

# Sketch on YZ plane
sketch16 = doc.addObject("Sketcher::SketchObject", "Sketch015")
body.addObject(sketch16)
sketch16.AttachmentSupport = (doc.YZ_Plane, [""])
sketch16.MapMode = "FlatFace"
sketch16.AttachmentOffset = App.Placement(App.Vector(0, 0, -955), App.Rotation())
add_polygon(sketch16, [(-2262.5, 25), (-2312.5, 25), (-2312.5, 21), (-2266.5, 21), (-2266.5, -25), (-2262.5, -25)])  # lines 0-5
add_polygon(sketch16, [(-1500, 25), (-1550, 25), (-1550, 21), (-1504, 21), (-1504, -25), (-1500, -25)])  # lines 6-11
add_polygon(sketch16, [(-737.5, 25), (-787.5, 25), (-787.5, 21), (-741.5, 21), (-741.5, -25), (-737.5, -25)])  # lines 12-17
sketch16.addConstraint([
    Sketcher.Constraint("Horizontal", 0),
    Sketcher.Constraint("Vertical", 1),
    Sketcher.Constraint("Horizontal", 2),
    Sketcher.Constraint("Vertical", 3),
    Sketcher.Constraint("Horizontal", 4),
    Sketcher.Constraint("Vertical", 5),
    Sketcher.Constraint("Horizontal", 6),
    Sketcher.Constraint("Vertical", 7),
    Sketcher.Constraint("Horizontal", 8),
    Sketcher.Constraint("Vertical", 9),
    Sketcher.Constraint("Horizontal", 10),
    Sketcher.Constraint("Vertical", 11),
    Sketcher.Constraint("Horizontal", 12),
    Sketcher.Constraint("Vertical", 13),
    Sketcher.Constraint("Horizontal", 14),
    Sketcher.Constraint("Vertical", 15),
    Sketcher.Constraint("Horizontal", 16),
    Sketcher.Constraint("Vertical", 17),
    Sketcher.Constraint("Horizontal", 5, 2, 6, 2),
    Sketcher.Constraint("Horizontal", 2, 2, 7, 2),
    Sketcher.Constraint("Horizontal", 4, 2, 9, 2),
    Sketcher.Constraint("Horizontal", 11, 2, 12, 2),
    Sketcher.Constraint("Horizontal", 8, 2, 13, 2),
    Sketcher.Constraint("Horizontal", 10, 2, 15, 2),
    Sketcher.Constraint("Equal", 0, 6),
    Sketcher.Constraint("Equal", 2, 8),
    Sketcher.Constraint("Equal", 6, 12),
    Sketcher.Constraint("Equal", 8, 14),
    Sketcher.Constraint("Equal", 16, 1),
    Sketcher.Constraint("Equal", 14, 3),
    Sketcher.Constraint("DistanceX", 0, 2, 0, 1, 50.0),
    Sketcher.Constraint("DistanceX", 2, 1, 2, 2, 46.0),
    Sketcher.Constraint("DistanceY", -1, 1, 0, 2, 25.0),
    Sketcher.Constraint("DistanceX", 6, 2, -1, 1, 1550.0),
    Sketcher.Constraint("DistanceX", 0, 2, -1, 1, 2312.5),
    Sketcher.Constraint("DistanceX", 12, 2, -1, 1, 787.5),
])
pad16 = doc.addObject("PartDesign::Pad", "Pad015")
body.addObject(pad16)
pad16.Profile = sketch16
pad16.Length = 120
pad16.Reversed = True
body2 = doc.addObject("PartDesign::Body", "Body001")
doc.recompute()

body2.BaseFeature = body
doc.recompute()

mirroring = doc.addObject("Part::Mirroring", "Mirroring")
mirroring.Source = body
mirroring.Base = App.Vector(0, 0, 0)
mirroring.Normal = App.Vector(1, 0, 0)
body3 = doc.addObject("PartDesign::Body", "Body002")
body3.BaseFeature = mirroring
boolean = doc.addObject("PartDesign::Boolean", "Boolean")
body2.addObject(boolean)
boolean.Type = "Fuse"
boolean.addObjects([body3])
doc.recompute()
mirroring.Visibility = False

doc.recompute()
